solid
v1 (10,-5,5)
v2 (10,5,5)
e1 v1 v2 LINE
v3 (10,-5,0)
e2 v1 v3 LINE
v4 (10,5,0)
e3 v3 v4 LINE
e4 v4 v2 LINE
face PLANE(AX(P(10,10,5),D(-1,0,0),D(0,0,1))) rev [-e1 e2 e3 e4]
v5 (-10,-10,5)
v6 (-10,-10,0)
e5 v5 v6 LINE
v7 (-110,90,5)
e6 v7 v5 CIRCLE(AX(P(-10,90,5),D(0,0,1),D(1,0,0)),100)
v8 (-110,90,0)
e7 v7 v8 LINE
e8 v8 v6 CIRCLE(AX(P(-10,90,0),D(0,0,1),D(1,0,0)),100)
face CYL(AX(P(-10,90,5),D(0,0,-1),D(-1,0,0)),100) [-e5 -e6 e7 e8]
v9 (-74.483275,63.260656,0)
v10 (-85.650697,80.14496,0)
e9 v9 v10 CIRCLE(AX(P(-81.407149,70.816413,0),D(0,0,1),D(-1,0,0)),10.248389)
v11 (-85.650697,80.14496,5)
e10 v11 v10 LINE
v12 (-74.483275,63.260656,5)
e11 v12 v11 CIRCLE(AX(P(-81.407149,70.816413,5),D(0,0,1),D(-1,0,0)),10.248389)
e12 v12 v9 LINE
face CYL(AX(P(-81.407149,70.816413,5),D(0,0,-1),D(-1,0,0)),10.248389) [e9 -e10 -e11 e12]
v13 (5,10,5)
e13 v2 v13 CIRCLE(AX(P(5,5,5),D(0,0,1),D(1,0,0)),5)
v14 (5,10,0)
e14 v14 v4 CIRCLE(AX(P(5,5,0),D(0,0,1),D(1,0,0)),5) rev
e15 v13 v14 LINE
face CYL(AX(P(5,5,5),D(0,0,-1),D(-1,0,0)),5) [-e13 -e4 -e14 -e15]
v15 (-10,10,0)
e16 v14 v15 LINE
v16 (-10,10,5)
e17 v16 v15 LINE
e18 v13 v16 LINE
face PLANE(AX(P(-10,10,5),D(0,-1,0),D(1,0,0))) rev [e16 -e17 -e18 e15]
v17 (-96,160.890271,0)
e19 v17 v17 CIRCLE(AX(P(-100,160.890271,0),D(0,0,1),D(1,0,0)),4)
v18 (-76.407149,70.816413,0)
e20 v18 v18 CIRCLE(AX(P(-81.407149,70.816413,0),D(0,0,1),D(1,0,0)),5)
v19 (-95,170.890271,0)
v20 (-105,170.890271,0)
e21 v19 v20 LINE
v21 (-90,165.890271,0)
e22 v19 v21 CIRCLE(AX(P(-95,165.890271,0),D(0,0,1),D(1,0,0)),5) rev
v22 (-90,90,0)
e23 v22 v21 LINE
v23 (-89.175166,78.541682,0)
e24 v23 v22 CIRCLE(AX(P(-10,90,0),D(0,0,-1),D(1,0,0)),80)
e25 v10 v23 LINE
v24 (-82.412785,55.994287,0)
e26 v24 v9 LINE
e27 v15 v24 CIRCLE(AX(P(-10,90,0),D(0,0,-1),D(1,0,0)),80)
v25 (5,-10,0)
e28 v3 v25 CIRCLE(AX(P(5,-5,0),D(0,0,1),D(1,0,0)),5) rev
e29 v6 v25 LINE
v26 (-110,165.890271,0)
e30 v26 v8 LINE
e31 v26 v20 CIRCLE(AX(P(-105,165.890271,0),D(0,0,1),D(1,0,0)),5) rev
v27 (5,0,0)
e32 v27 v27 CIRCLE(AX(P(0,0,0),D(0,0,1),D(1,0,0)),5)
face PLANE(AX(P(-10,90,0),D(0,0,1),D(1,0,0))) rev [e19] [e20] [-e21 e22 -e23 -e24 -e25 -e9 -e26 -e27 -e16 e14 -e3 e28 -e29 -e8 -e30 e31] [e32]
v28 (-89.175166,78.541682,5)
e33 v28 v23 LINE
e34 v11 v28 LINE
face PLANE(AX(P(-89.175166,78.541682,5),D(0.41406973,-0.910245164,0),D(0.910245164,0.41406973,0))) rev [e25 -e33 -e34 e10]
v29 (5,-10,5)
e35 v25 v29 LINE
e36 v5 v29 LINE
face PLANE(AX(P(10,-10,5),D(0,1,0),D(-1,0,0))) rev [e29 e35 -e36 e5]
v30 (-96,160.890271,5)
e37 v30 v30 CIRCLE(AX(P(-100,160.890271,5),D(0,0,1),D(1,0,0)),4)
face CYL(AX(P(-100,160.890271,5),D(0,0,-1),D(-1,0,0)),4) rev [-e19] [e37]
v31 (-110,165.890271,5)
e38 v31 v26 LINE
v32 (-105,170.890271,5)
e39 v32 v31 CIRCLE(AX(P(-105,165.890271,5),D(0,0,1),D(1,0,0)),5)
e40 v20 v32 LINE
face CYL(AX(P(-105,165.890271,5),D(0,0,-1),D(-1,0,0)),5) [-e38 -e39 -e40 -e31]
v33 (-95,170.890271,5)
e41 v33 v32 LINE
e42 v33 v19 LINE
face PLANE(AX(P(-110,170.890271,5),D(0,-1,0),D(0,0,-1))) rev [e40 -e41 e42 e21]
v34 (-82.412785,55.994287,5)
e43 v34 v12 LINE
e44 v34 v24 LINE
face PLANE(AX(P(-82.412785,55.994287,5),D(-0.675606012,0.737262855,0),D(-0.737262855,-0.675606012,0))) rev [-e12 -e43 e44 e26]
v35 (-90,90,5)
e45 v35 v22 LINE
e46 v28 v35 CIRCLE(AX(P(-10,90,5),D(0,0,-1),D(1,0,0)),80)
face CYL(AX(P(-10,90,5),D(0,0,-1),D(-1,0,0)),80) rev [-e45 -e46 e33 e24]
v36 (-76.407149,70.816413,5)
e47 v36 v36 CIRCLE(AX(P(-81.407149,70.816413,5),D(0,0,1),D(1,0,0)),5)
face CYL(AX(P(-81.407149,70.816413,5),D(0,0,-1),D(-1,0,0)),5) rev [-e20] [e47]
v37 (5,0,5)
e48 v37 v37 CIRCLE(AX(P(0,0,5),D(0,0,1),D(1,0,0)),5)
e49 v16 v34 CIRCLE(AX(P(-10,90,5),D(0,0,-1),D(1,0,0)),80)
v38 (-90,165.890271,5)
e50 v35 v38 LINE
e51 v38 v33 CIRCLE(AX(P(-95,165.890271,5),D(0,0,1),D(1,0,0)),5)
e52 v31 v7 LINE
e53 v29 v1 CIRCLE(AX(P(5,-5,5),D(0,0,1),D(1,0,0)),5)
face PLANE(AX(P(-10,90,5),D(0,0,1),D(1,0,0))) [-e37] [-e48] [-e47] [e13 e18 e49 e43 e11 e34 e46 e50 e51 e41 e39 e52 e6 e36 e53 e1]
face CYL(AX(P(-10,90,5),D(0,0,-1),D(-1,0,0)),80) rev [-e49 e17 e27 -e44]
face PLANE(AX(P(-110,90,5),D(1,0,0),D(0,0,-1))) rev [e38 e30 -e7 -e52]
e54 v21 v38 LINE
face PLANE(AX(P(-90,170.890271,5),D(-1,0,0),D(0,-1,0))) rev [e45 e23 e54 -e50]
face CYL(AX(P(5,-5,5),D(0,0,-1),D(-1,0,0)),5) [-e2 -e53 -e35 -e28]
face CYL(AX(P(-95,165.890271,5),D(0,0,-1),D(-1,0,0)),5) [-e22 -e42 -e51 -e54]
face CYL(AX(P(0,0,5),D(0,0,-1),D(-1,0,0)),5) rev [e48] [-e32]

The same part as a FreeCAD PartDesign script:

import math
import FreeCAD as App
import Part
import Sketcher

V = App.Vector


def edges_at(feature, points):
    """Names of the edges that pass closest to the given points."""
    edges = feature.Shape.Edges
    near = lambda p: min(range(len(edges)), key=lambda i: edges[i].distToShape(Part.Vertex(*p))[0])
    return sorted({f"Edge{near(p) + 1}" for p in points})

doc = App.newDocument("Part")
params = doc.addObject("Spreadsheet::Sheet", "Params")
for row, (alias, value) in enumerate([
    ("sketch1_diameter", "10 mm"),
    ("sketch1_diameter2", "8 mm"),
    ("sketch1_radius", "80 mm"),
    ("sketch1_radius2", "100 mm"),
    ("pad1_length", "5 mm"),
    ("fillet_radius", "5 mm"),
], start=1):
    params.set(f"A{row}", alias)
    params.set(f"B{row}", "=" + value)
    params.setAlias(f"B{row}", alias)

body = doc.addObject("PartDesign::Body", "Body")

# Sketch on XY plane
sketch1 = body.newObject("Sketcher::SketchObject", "Sketch")
sketch1.AttachmentSupport = (doc.getObject("XY_Plane"), [""])
sketch1.MapMode = "FlatFace"
sketch1.addGeometry(Part.LineSegment(V(10, 10, 0), V(-10, 10, 0)), False)
sketch1.addGeometry(Part.ArcOfCircle(Part.Circle(V(-10, 90, 0), V(0, 0, 1), 80), math.radians(-154.844816), math.radians(-90)), False)
sketch1.addGeometry(Part.LineSegment(V(-82.412785, 55.994287, 0), V(-74.483275, 63.260656, 0)), False)
sketch1.addGeometry(Part.ArcOfCircle(Part.Circle(V(-81.407149, 70.816413, 0), V(0, 0, 1), 10.248389), math.radians(-47.498772), math.radians(114.460747)), False)
sketch1.addGeometry(Part.LineSegment(V(-85.650697, 80.14496, 0), V(-89.175166, 78.541682, 0)), False)
sketch1.addGeometry(Part.ArcOfCircle(Part.Circle(V(-10, 90, 0), V(0, 0, 1), 80), math.radians(180), math.radians(188.234737)), False)
sketch1.addGeometry(Part.LineSegment(V(-90, 90, 0), V(-90, 170.890271, 0)), False)
sketch1.addGeometry(Part.LineSegment(V(-90, 170.890271, 0), V(-110, 170.890271, 0)), False)
sketch1.addGeometry(Part.LineSegment(V(-110, 170.890271, 0), V(-110, 90, 0)), False)
sketch1.addGeometry(Part.ArcOfCircle(Part.Circle(V(-10, 90, 0), V(0, 0, 1), 100), math.radians(180), math.radians(270)), False)
sketch1.addGeometry(Part.LineSegment(V(-10, -10, 0), V(10, -10, 0)), False)
sketch1.addGeometry(Part.LineSegment(V(10, -10, 0), V(10, 10, 0)), False)
sketch1.addGeometry(Part.Circle(V(0, 0, 0), V(0, 0, 1), 5), False)
sketch1.addGeometry(Part.Circle(V(-81.407149, 70.816413, 0), V(0, 0, 1), 5), False)
sketch1.addGeometry(Part.Circle(V(-100, 160.890271, 0), V(0, 0, 1), 4), False)
sketch1.addConstraint(Sketcher.Constraint("Tangent", 0, 2, 1, 2))
sketch1.addConstraint(Sketcher.Constraint("Coincident", 1, 1, 2, 1))
sketch1.addConstraint(Sketcher.Constraint("Tangent", 2, 2, 3, 1))
sketch1.addConstraint(Sketcher.Constraint("Tangent", 3, 2, 4, 1))
sketch1.addConstraint(Sketcher.Constraint("Coincident", 4, 2, 5, 2))
sketch1.addConstraint(Sketcher.Constraint("Tangent", 5, 1, 6, 1))
sketch1.addConstraint(Sketcher.Constraint("Coincident", 6, 2, 7, 1))
sketch1.addConstraint(Sketcher.Constraint("Coincident", 7, 2, 8, 1))
sketch1.addConstraint(Sketcher.Constraint("Tangent", 8, 2, 9, 1))
sketch1.addConstraint(Sketcher.Constraint("Tangent", 9, 2, 10, 1))
sketch1.addConstraint(Sketcher.Constraint("Coincident", 10, 2, 11, 1))
sketch1.addConstraint(Sketcher.Constraint("Coincident", 11, 2, 0, 1))
sketch1.addConstraint(Sketcher.Constraint("Horizontal", 0))
sketch1.addConstraint(Sketcher.Constraint("Vertical", 6))
sketch1.addConstraint(Sketcher.Constraint("Horizontal", 7))
sketch1.addConstraint(Sketcher.Constraint("Vertical", 8))
sketch1.addConstraint(Sketcher.Constraint("Horizontal", 10))
sketch1.addConstraint(Sketcher.Constraint("Vertical", 11))
sketch1.addConstraint(Sketcher.Constraint("Coincident", 12, 3, -1, 1))
sketch1.addConstraint(Sketcher.Constraint("Coincident", 5, 3, 1, 3))
sketch1.addConstraint(Sketcher.Constraint("Coincident", 9, 3, 1, 3))
sketch1.addConstraint(Sketcher.Constraint("Coincident", 13, 3, 3, 3))
sketch1.addConstraint(Sketcher.Constraint("Equal", 1, 5))
sketch1.addConstraint(Sketcher.Constraint("Equal", 12, 13))
sketch1.addConstraint(Sketcher.Constraint("Symmetric", 0, 2, 10, 2, -1, 1))
sketch1.addConstraint(Sketcher.Constraint("Equal", 0, 7))
sketch1.addConstraint(Sketcher.Constraint("Diameter", 12, 10.0))
sketch1.addConstraint(Sketcher.Constraint("Diameter", 14, 8.0))
sketch1.addConstraint(Sketcher.Constraint("Radius", 1, 80.0))
sketch1.addConstraint(Sketcher.Constraint("Radius", 9, 100.0))
sketch1.addConstraint(Sketcher.Constraint("DistanceX", 14, 3, -1, 1, 100.0))
sketch1.addConstraint(Sketcher.Constraint("DistanceY", 14, 3, 6, 2, 10.0))
sketch1.addConstraint(Sketcher.Constraint("Radius", 3, 10.248389))
sketch1.addConstraint(Sketcher.Constraint("Distance", 4, 3.872))
sketch1.addConstraint(Sketcher.Constraint("DistanceY", 6, 1, 6, 2, 80.890271))
sketch1.addConstraint(Sketcher.Constraint("DistanceX", 3, 3, -1, 1, 81.407149))
sketch1.addConstraint(Sketcher.Constraint("DistanceY", -1, 1, 3, 2, 80.14496))
sketch1.addConstraint(Sketcher.Constraint("DistanceX", 1, 1, 2, 2, 7.92951))
sketch1.setExpression("Constraints[26]", "Params.sketch1_diameter")
sketch1.setExpression("Constraints[27]", "Params.sketch1_diameter2")
sketch1.setExpression("Constraints[28]", "Params.sketch1_radius")
sketch1.setExpression("Constraints[29]", "Params.sketch1_radius2")
pad1 = body.newObject("PartDesign::Pad", "Pad")
pad1.Profile = sketch1
pad1.setExpression("Length", "Params.pad1_length")
doc.recompute()

fillet = body.newObject("PartDesign::Fillet", "Fillet")
fillet.Base = (pad1, edges_at(pad1, [
    (10, -10, 2.5),
    (-110, 170.89, 2.5),
    (-90, 170.89, 2.5),
    (10, 10, 2.5),
]))
fillet.setExpression("Radius", "Params.fillet_radius")

doc.recompute()
